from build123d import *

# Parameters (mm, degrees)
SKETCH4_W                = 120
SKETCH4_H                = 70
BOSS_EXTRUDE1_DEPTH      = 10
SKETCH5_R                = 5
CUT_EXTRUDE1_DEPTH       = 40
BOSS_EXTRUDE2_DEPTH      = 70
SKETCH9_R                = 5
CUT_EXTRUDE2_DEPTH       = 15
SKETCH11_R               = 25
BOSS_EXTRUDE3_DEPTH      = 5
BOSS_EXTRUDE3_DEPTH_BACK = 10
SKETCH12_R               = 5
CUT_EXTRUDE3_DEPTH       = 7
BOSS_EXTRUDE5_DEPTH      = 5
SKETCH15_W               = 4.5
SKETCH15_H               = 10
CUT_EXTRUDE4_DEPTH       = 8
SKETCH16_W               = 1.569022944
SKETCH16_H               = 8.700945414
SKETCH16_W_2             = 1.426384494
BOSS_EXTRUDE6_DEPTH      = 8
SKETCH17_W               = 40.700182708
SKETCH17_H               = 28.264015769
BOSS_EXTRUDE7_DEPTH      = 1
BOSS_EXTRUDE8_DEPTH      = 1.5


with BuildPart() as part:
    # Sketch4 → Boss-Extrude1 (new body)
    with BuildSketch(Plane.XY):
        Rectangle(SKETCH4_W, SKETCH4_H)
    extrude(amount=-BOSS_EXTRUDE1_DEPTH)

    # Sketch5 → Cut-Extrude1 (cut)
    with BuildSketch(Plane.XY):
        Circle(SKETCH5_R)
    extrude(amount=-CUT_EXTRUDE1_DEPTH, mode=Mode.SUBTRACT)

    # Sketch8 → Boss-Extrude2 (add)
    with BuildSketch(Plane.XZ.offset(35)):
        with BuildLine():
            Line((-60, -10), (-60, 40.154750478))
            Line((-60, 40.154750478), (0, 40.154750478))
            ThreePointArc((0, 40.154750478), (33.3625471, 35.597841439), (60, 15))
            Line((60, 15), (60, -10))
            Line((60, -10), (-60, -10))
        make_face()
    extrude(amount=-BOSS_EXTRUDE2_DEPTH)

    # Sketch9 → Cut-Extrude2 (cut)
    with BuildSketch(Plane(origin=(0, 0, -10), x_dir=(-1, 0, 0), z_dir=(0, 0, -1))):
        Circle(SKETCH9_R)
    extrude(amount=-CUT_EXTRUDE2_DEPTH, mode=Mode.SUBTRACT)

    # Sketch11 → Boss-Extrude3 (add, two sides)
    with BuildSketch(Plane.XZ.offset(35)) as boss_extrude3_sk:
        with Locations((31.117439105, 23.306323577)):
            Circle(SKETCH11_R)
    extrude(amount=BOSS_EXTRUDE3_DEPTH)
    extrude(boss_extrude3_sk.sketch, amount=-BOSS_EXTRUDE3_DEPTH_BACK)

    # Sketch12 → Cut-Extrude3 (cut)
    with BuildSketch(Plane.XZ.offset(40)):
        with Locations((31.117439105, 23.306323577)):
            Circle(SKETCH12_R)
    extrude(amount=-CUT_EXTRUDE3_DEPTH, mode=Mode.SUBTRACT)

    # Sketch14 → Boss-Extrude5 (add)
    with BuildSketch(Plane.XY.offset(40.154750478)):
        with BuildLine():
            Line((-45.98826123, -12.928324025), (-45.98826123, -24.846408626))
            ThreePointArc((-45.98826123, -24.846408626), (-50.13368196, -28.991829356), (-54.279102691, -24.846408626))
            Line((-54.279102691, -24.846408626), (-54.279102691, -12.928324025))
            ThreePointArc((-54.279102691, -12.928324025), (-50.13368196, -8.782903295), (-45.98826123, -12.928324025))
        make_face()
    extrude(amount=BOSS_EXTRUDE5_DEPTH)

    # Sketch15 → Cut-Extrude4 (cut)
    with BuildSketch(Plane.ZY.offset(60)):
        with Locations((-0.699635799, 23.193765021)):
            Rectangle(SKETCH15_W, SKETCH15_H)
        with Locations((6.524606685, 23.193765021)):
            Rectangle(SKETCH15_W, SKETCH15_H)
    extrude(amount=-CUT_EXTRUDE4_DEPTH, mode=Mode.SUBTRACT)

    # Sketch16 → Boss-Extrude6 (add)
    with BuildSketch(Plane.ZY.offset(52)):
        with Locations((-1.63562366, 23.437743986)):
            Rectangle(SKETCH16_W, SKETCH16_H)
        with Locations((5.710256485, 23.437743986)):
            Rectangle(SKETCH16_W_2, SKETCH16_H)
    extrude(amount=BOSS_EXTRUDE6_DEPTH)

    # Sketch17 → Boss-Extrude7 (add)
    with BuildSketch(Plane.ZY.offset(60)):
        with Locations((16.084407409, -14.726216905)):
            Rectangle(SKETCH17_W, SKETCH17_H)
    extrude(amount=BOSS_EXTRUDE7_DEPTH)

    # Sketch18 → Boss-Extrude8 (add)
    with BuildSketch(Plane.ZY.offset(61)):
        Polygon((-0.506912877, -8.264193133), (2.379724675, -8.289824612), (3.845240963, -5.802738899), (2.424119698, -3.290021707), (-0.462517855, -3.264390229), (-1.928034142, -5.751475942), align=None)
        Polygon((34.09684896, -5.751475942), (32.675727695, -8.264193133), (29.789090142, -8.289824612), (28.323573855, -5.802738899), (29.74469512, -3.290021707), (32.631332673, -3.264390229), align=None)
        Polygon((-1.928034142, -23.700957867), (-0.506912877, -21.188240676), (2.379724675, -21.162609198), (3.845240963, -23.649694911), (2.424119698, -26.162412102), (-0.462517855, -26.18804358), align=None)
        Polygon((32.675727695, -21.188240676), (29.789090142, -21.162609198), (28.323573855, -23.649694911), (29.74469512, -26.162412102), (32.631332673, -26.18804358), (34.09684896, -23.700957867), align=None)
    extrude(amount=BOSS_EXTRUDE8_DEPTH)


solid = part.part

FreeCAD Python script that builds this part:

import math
import FreeCAD as App
import Part
import Sketcher

V = App.Vector
Q = App.Units.Quantity


def add_polygon(sketch, points):
    """Adds a closed chain of lines whose ends are joined by coincident constraints."""
    first, n = sketch.GeometryCount, len(points)
    for a, b in zip(points, points[1:] + points[:1]):
        sketch.addGeometry(Part.LineSegment(App.Vector(*a, 0), App.Vector(*b, 0)), False)
    for i in range(n):
        sketch.addConstraint(Sketcher.Constraint("Coincident", first + i, 2, first + (i + 1) % n, 1))

doc = App.newDocument("Part")
body = doc.addObject("PartDesign::Body", "Body")

# Sketch on XY plane
sketch1 = body.newObject("Sketcher::SketchObject", "Sketch")
sketch1.AttachmentSupport = (doc.getObject("XY_Plane"), [""])
sketch1.MapMode = "FlatFace"
add_polygon(sketch1, [(-60, 35), (-60, -35), (60, -35), (60, 35)])  # lines 0-3
sketch1.addConstraint([
    Sketcher.Constraint("Vertical", 0),
    Sketcher.Constraint("Horizontal", 1),
    Sketcher.Constraint("Vertical", 2),
    Sketcher.Constraint("Horizontal", 3),
    Sketcher.Constraint("Symmetric", 0, 2, 2, 2, -1, 1),
    Sketcher.Constraint("DistanceX", 1, 1, 1, 2, Q("120 mm")),
    Sketcher.Constraint("DistanceY", 0, 2, 0, 1, Q("70 mm")),
])
pad1 = body.newObject("PartDesign::Pad", "Pad")
pad1.Profile = sketch1
pad1.Length = 10
pad1.Reversed = True

# Sketch on XY plane
sketch2 = body.newObject("Sketcher::SketchObject", "Sketch001")
sketch2.AttachmentSupport = (doc.getObject("XY_Plane"), [""])
sketch2.MapMode = "FlatFace"
sketch2.addGeometry(Part.Circle(V(0, 0, 0), V(0, 0, 1), 5), False)
sketch2.addConstraint([
    Sketcher.Constraint("Coincident", 0, 3, -1, 1),
    Sketcher.Constraint("Diameter", 0, Q("10 mm")),
])
pocket1 = body.newObject("PartDesign::Pocket", "Pocket")
pocket1.Profile = sketch2
pocket1.Length = 40

# Sketch on XZ plane
sketch3 = body.newObject("Sketcher::SketchObject", "Sketch002")
sketch3.AttachmentSupport = (doc.getObject("XZ_Plane"), [""])
sketch3.MapMode = "FlatFace"
sketch3.AttachmentOffset = App.Placement(V(0, 0, 35), App.Rotation())
sketch3.addGeometry([
    Part.LineSegment(V(-60, 40, 0), V(-60, -10, 0)),  # 0
    Part.LineSegment(V(-60, -10, 0), V(60, -10, 0)),  # 1
    Part.LineSegment(V(60, -10, 0), V(60, 15, 0)),  # 2
    Part.ArcOfCircle(Part.Circle(V(8, -25, 0), V(0, 0, 1), 65), math.radians(37), math.radians(97)),  # 3
    Part.LineSegment(V(0, 40, 0), V(-60, 40, 0)),  # 4
], False)
sketch3.addConstraint([
    Sketcher.Constraint("Coincident", 0, 2, 1, 1),
    Sketcher.Constraint("Coincident", 1, 2, 2, 1),
    Sketcher.Constraint("Coincident", 2, 2, 3, 1),
    Sketcher.Constraint("Coincident", 3, 2, 4, 1),
    Sketcher.Constraint("Coincident", 4, 2, 0, 1),
    Sketcher.Constraint("Vertical", 0),
    Sketcher.Constraint("Horizontal", 1),
    Sketcher.Constraint("Vertical", 2),
    Sketcher.Constraint("Horizontal", 4),
    Sketcher.Constraint("PointOnObject", 3, 2, -2),
    Sketcher.Constraint("DistanceX", 1, 1, 1, 2, Q("120 mm")),
    Sketcher.Constraint("DistanceX", 4, 2, 4, 1, Q("60 mm")),
    Sketcher.Constraint("DistanceY", 2, 1, 2, 2, Q("25 mm")),
    Sketcher.Constraint("DistanceY", 0, 2, -1, 1, Q("10 mm")),
    Sketcher.Constraint("Radius", 3, Q("65.186214 mm")),
    Sketcher.Constraint("DistanceY", 0, 2, 0, 1, Q("50.15475 mm")),
])
pad2 = body.newObject("PartDesign::Pad", "Pad001")
pad2.Profile = sketch3
pad2.Length = 70
pad2.Reversed = True

# Sketch on XY plane
sketch4 = body.newObject("Sketcher::SketchObject", "Sketch003")
sketch4.AttachmentSupport = (doc.getObject("XY_Plane"), [""])
sketch4.MapMode = "FlatFace"
sketch4.AttachmentOffset = App.Placement(V(0, 0, -10), App.Rotation())
sketch4.addGeometry(Part.Circle(V(0, 0, 0), V(0, 0, 1), 5), False)
sketch4.addConstraint([
    Sketcher.Constraint("Coincident", 0, 3, -1, 1),
    Sketcher.Constraint("Diameter", 0, Q("10 mm")),
])
pocket2 = body.newObject("PartDesign::Pocket", "Pocket001")
pocket2.Profile = sketch4
pocket2.Length = 15
pocket2.Reversed = True

# Sketch on XZ plane
sketch5 = body.newObject("Sketcher::SketchObject", "Sketch004")
sketch5.AttachmentSupport = (doc.getObject("XZ_Plane"), [""])
sketch5.MapMode = "FlatFace"
sketch5.AttachmentOffset = App.Placement(V(0, 0, 35), App.Rotation())
sketch5.addGeometry(Part.Circle(V(31, 23, 0), V(0, 0, 1), 25), False)
sketch5.addConstraint([
    Sketcher.Constraint("Diameter", 0, Q("50 mm")),
    Sketcher.Constraint("DistanceX", -1, 1, 0, 3, Q("31.117439 mm")),
    Sketcher.Constraint("DistanceY", -1, 1, 0, 3, Q("23.306324 mm")),
])
pad3 = body.newObject("PartDesign::Pad", "Pad002")
pad3.Profile = sketch5
pad3.Type = "TwoLengths"
pad3.Length = 5
pad3.Length2 = 10

# Sketch on XZ plane
sketch6 = body.newObject("Sketcher::SketchObject", "Sketch005")
sketch6.AttachmentSupport = (doc.getObject("XZ_Plane"), [""])
sketch6.MapMode = "FlatFace"
sketch6.AttachmentOffset = App.Placement(V(0, 0, 40), App.Rotation())
sketch6.addGeometry(Part.Circle(V(31, 23, 0), V(0, 0, 1), 5), False)
sketch6.addConstraint([
    Sketcher.Constraint("Diameter", 0, Q("10 mm")),
    Sketcher.Constraint("DistanceX", -1, 1, 0, 3, Q("31.117439 mm")),
    Sketcher.Constraint("DistanceY", -1, 1, 0, 3, Q("23.306324 mm")),
])
pocket3 = body.newObject("PartDesign::Pocket", "Pocket002")
pocket3.Profile = sketch6
pocket3.Length = 7

# Sketch on XY plane
sketch7 = body.newObject("Sketcher::SketchObject", "Sketch006")
sketch7.AttachmentSupport = (doc.getObject("XY_Plane"), [""])
sketch7.MapMode = "FlatFace"
sketch7.AttachmentOffset = App.Placement(V(0, 0, 40.15475), App.Rotation())
sketch7.addGeometry([
    Part.LineSegment(V(-46, -24.8, 0), V(-46, -12.9, 0)),
    Part.ArcOfCircle(Part.Circle(V(-50.1, -12.9, 0), V(0, 0, 1), 4.1), math.radians(0), math.radians(180)),
    Part.LineSegment(V(-54.3, -12.9, 0), V(-54.3, -24.8, 0)),
    Part.ArcOfCircle(Part.Circle(V(-50.1, -24.8, 0), V(0, 0, 1), 4.1), math.radians(-180), math.radians(0)),
], False)
sketch7.addConstraint([
    Sketcher.Constraint("Tangent", 0, 2, 1, 1),
    Sketcher.Constraint("Tangent", 1, 2, 2, 1),
    Sketcher.Constraint("Tangent", 2, 2, 3, 1),
    Sketcher.Constraint("Tangent", 3, 2, 0, 1),
    Sketcher.Constraint("Vertical", 0),
    Sketcher.Constraint("Vertical", 2),
    Sketcher.Constraint("Radius", 1, Q("4.145421 mm")),
    Sketcher.Constraint("DistanceY", 0, 1, 0, 2, Q("11.918085 mm")),
    Sketcher.Constraint("DistanceX", 1, 3, -1, 1, Q("50.133682 mm")),
    Sketcher.Constraint("DistanceY", 3, 3, -1, 1, Q("24.846409 mm")),
])
pad4 = body.newObject("PartDesign::Pad", "Pad003")
pad4.Profile = sketch7
pad4.Length = 5

# Sketch on YZ plane
sketch8 = body.newObject("Sketcher::SketchObject", "Sketch007")
sketch8.AttachmentSupport = (doc.getObject("YZ_Plane"), [""])
sketch8.MapMode = "FlatFace"
sketch8.AttachmentOffset = App.Placement(V(0, 0, -60), App.Rotation())
add_polygon(sketch8, [(28.2, -2.9), (18.2, -2.9), (18.2, 1.6), (28.2, 1.6)])  # lines 0-3
add_polygon(sketch8, [(28.2, 4.3), (18.2, 4.3), (18.2, 8.8), (28.2, 8.8)])  # lines 4-7
sketch8.addConstraint([
    Sketcher.Constraint("Horizontal", 0),
    Sketcher.Constraint("Vertical", 1),
    Sketcher.Constraint("Horizontal", 2),
    Sketcher.Constraint("Vertical", 3),
    Sketcher.Constraint("Horizontal", 4),
    Sketcher.Constraint("Vertical", 5),
    Sketcher.Constraint("Horizontal", 6),
    Sketcher.Constraint("Vertical", 7),
    Sketcher.Constraint("Vertical", 1, 2, 4, 2),
    Sketcher.Constraint("Vertical", 3, 2, 6, 2),
    Sketcher.Constraint("Equal", 3, 5),
    Sketcher.Constraint("DistanceX", 0, 2, 0, 1, Q("10 mm")),
    Sketcher.Constraint("DistanceY", 1, 1, 1, 2, Q("4.5 mm")),
    Sketcher.Constraint("DistanceX", -1, 1, 0, 2, Q("18.193765 mm")),
    Sketcher.Constraint("DistanceY", 0, 2, -1, 1, Q("2.949636 mm")),
    Sketcher.Constraint("DistanceY", -1, 1, 4, 2, Q("4.274607 mm")),
])
pocket4 = body.newObject("PartDesign::Pocket", "Pocket003")
pocket4.Profile = sketch8
pocket4.Length = 8
pocket4.Reversed = True

# Sketch on YZ plane
sketch9 = body.newObject("Sketcher::SketchObject", "Sketch008")
sketch9.AttachmentSupport = (doc.getObject("YZ_Plane"), [""])
sketch9.MapMode = "FlatFace"
sketch9.AttachmentOffset = App.Placement(V(0, 0, -52), App.Rotation())
add_polygon(sketch9, [(27.8, -2.4), (19.1, -2.4), (19.1, -0.9), (27.8, -0.9)])  # lines 0-3
add_polygon(sketch9, [(27.8, 5), (19.1, 5), (19.1, 6.4), (27.8, 6.4)])  # lines 4-7
sketch9.addConstraint([
    Sketcher.Constraint("Horizontal", 0),
    Sketcher.Constraint("Vertical", 1),
    Sketcher.Constraint("Horizontal", 2),
    Sketcher.Constraint("Vertical", 3),
    Sketcher.Constraint("Horizontal", 4),
    Sketcher.Constraint("Vertical", 5),
    Sketcher.Constraint("Horizontal", 6),
    Sketcher.Constraint("Vertical", 7),
    Sketcher.Constraint("Vertical", 1, 2, 4, 2),
    Sketcher.Constraint("Vertical", 3, 2, 6, 2),
    Sketcher.Constraint("DistanceY", 0, 2, 4, 2, Q("7.417199 mm")),
    Sketcher.Constraint("DistanceX", 0, 2, 0, 1, Q("8.700945 mm")),
    Sketcher.Constraint("DistanceY", 1, 1, 1, 2, Q("1.569023 mm")),
    Sketcher.Constraint("DistanceY", 5, 1, 5, 2, Q("1.426384 mm")),
    Sketcher.Constraint("DistanceX", -1, 1, 0, 2, Q("19.087271 mm")),
    Sketcher.Constraint("DistanceY", -1, 1, 5, 2, Q("6.423449 mm")),
])
pad5 = body.newObject("PartDesign::Pad", "Pad004")
pad5.Profile = sketch9
pad5.Length = 8
pad5.Reversed = True

# Sketch on YZ plane
sketch10 = body.newObject("Sketcher::SketchObject", "Sketch009")
sketch10.AttachmentSupport = (doc.getObject("YZ_Plane"), [""])
sketch10.MapMode = "FlatFace"
sketch10.AttachmentOffset = App.Placement(V(0, 0, -60), App.Rotation())
add_polygon(sketch10, [(-1, -4), (-29, -4), (-29, 36), (-1, 36)])  # lines 0-3
sketch10.addConstraint([
    Sketcher.Constraint("Horizontal", 0),
    Sketcher.Constraint("Vertical", 1),
    Sketcher.Constraint("Horizontal", 2),
    Sketcher.Constraint("Vertical", 3),
    Sketcher.Constraint("DistanceY", -1, 1, 1, 2, Q("36.434499 mm")),
    Sketcher.Constraint("DistanceX", 0, 2, 0, 1, Q("28.264016 mm")),
    Sketcher.Constraint("DistanceY", 1, 1, 1, 2, Q("40.700183 mm")),
    Sketcher.Constraint("DistanceX", 2, 2, -1, 1, Q("0.594209 mm")),
])
pad6 = body.newObject("PartDesign::Pad", "Pad005")
pad6.Profile = sketch10
pad6.Length = 1
pad6.Reversed = True

# Sketch on YZ plane
sketch11 = body.newObject("Sketcher::SketchObject", "Sketch010")
sketch11.AttachmentSupport = (doc.getObject("YZ_Plane"), [""])
sketch11.MapMode = "FlatFace"
sketch11.AttachmentOffset = App.Placement(V(0, 0, -61), App.Rotation())
add_polygon(sketch11, [(-8.264193, -0.506913), (-8.289825, 2.379725), (-5.802739, 3.845241), (-3.290022, 2.42412), (-3.26439, -0.462518), (-5.751476, -1.928034)])  # lines 0-5
add_polygon(sketch11, [(-8.264193, 32.675728), (-5.751476, 34.096849), (-3.26439, 32.631333), (-3.290022, 29.744695), (-5.802739, 28.323574), (-8.289825, 29.78909)])  # lines 6-11
add_polygon(sketch11, [(-21.188241, -0.506913), (-23.700958, -1.928034), (-26.188044, -0.462518), (-26.162412, 2.42412), (-23.649695, 3.845241), (-21.162609, 2.379725)])  # lines 12-17
add_polygon(sketch11, [(-21.188241, 32.675728), (-21.162609, 29.78909), (-23.649695, 28.323574), (-26.162412, 29.744695), (-26.188044, 32.631333), (-23.700958, 34.096849)])  # lines 18-23
sketch11.addConstraint([
    Sketcher.Constraint("Parallel", 0, 3),
    Sketcher.Constraint("Parallel", 1, 4),
    Sketcher.Constraint("Parallel", 2, 5),
    Sketcher.Constraint("Parallel", 6, 9),
    Sketcher.Constraint("Parallel", 7, 10),
    Sketcher.Constraint("Parallel", 8, 11),
    Sketcher.Constraint("Parallel", 9, 12),
    Sketcher.Constraint("Parallel", 10, 13),
    Sketcher.Constraint("Parallel", 11, 14),
    Sketcher.Constraint("Parallel", 12, 15),
    Sketcher.Constraint("Parallel", 13, 16),
    Sketcher.Constraint("Parallel", 14, 17),
    Sketcher.Constraint("Parallel", 3, 18),
    Sketcher.Constraint("Parallel", 4, 19),
    Sketcher.Constraint("Parallel", 5, 20),
    Sketcher.Constraint("Parallel", 18, 21),
    Sketcher.Constraint("Parallel", 19, 22),
    Sketcher.Constraint("Parallel", 20, 23),
    Sketcher.Constraint("Horizontal", 4, 2, 12, 2),
    Sketcher.Constraint("Horizontal", 3, 2, 13, 2),
    Sketcher.Constraint("Horizontal", 2, 2, 14, 2),
    Sketcher.Constraint("Horizontal", 1, 2, 15, 2),
    Sketcher.Constraint("Horizontal", 0, 2, 16, 2),
    Sketcher.Constraint("Horizontal", 10, 2, 18, 2),
    Sketcher.Constraint("Horizontal", 9, 2, 19, 2),
    Sketcher.Constraint("Horizontal", 8, 2, 20, 2),
    Sketcher.Constraint("Horizontal", 7, 2, 21, 2),
    Sketcher.Constraint("Horizontal", 6, 2, 22, 2),
    Sketcher.Constraint("Vertical", 4, 2, 6, 2),
    Sketcher.Constraint("Vertical", 3, 2, 7, 2),
    Sketcher.Constraint("Vertical", 2, 2, 8, 2),
    Sketcher.Constraint("Vertical", 1, 2, 9, 2),
    Sketcher.Constraint("Vertical", 0, 2, 10, 2),
    Sketcher.Constraint("Vertical", 16, 2, 18, 2),
    Sketcher.Constraint("Vertical", 15, 2, 19, 2),
    Sketcher.Constraint("Vertical", 14, 2, 20, 2),
    Sketcher.Constraint("Vertical", 13, 2, 21, 2),
    Sketcher.Constraint("Equal", 0, 1),
    Sketcher.Constraint("Equal", 1, 2),
    Sketcher.Constraint("Equal", 2, 3),
    Sketcher.Constraint("DistanceX", 15, 2, 5, 2, Q("15.385502 mm")),
    Sketcher.Constraint("Distance", 0, Q("2.886751 mm")),
    Sketcher.Constraint("DistanceX", 1, 2, -1, 1, Q("5.802739 mm")),
    Sketcher.Constraint("DistanceY", -1, 1, 1, 2, Q("3.845241 mm")),
    Sketcher.Constraint("DistanceX", 2, 2, -1, 1, Q("3.290022 mm")),
    Sketcher.Constraint("DistanceX", 3, 2, -1, 1, Q("3.26439 mm")),
    Sketcher.Constraint("DistanceY", -1, 1, 6, 2, Q("34.096849 mm")),
    Sketcher.Constraint("DistanceX", 5, 2, 2, 2, Q("4.974171 mm")),
])
pad7 = body.newObject("PartDesign::Pad", "Pad006")
pad7.Profile = sketch11
pad7.Length = 1.5
pad7.Reversed = True

doc.recompute()
